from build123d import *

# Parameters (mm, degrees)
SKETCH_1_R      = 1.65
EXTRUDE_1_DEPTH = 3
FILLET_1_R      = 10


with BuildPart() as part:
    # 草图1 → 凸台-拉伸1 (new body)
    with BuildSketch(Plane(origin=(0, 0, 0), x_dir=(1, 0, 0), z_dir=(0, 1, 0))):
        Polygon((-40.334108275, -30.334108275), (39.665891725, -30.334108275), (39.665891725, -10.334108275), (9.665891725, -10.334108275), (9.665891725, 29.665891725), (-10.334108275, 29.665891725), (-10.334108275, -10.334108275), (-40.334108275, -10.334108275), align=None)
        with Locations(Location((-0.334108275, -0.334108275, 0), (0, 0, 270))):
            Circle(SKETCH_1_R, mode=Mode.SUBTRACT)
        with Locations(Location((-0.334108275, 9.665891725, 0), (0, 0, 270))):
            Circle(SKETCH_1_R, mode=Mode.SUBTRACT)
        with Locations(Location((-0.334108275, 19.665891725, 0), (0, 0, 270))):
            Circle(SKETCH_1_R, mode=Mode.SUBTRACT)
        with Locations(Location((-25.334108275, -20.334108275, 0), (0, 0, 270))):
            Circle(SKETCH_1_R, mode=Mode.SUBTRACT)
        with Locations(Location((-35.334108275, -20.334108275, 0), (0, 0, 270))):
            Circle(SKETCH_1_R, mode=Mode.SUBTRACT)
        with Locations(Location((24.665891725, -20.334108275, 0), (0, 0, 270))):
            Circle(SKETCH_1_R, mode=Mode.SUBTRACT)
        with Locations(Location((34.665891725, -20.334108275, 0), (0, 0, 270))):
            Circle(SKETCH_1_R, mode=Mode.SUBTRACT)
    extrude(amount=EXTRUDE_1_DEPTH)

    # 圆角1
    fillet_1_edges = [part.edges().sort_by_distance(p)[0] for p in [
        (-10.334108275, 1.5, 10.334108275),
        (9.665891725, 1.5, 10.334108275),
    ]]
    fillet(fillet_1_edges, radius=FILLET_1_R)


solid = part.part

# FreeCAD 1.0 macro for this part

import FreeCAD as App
import Part
import Sketcher


def edges_at(feature, points):
    """Names of the edges that pass closest to the given points."""
    edges = feature.Shape.Edges
    near = lambda p: min(range(len(edges)), key=lambda i: edges[i].distToShape(Part.Vertex(*p))[0])
    return sorted({f"Edge{near(p) + 1}" for p in points})


def add_polygon(sketch, points):
    """Adds a closed chain of lines whose ends are joined by coincident constraints."""
    first, n = sketch.GeometryCount, len(points)
    for a, b in zip(points, points[1:] + points[:1]):
        sketch.addGeometry(Part.LineSegment(App.Vector(*a, 0), App.Vector(*b, 0)), False)
    for i in range(n):
        sketch.addConstraint(Sketcher.Constraint("Coincident", first + i, 2, first + (i + 1) % n, 1))

doc = App.newDocument("Part")
body = doc.addObject("PartDesign::Body", "Body")

# Sketch on XZ plane
sketch1 = body.newObject("Sketcher::SketchObject", "Sketch")
sketch1.AttachmentSupport = (doc.getObject("XZ_Plane"), [""])
sketch1.MapMode = "FlatFace"
add_polygon(sketch1, [(-40.3, 30.3), (39.7, 30.3), (39.7, 10.3), (9.7, 10.3), (9.7, -29.7), (-10.3, -29.7), (-10.3, 10.3), (-40.3, 10.3)])  # lines 0-7
sketch1.addGeometry(Part.Circle(App.Vector(-35.3, 20.3, 0), App.Vector(0, 0, 1), 1.6), False)  # 8
sketch1.addGeometry(Part.Circle(App.Vector(-25.3, 20.3, 0), App.Vector(0, 0, 1), 1.6), False)  # 9
sketch1.addGeometry(Part.Circle(App.Vector(24.7, 20.3, 0), App.Vector(0, 0, 1), 1.6), False)  # 10
sketch1.addGeometry(Part.Circle(App.Vector(34.7, 20.3, 0), App.Vector(0, 0, 1), 1.6), False)  # 11
sketch1.addGeometry(Part.Circle(App.Vector(-0.3, 0.3, 0), App.Vector(0, 0, 1), 1.6), False)  # 12
sketch1.addGeometry(Part.Circle(App.Vector(-0.3, -9.7, 0), App.Vector(0, 0, 1), 1.6), False)  # 13
sketch1.addGeometry(Part.Circle(App.Vector(-0.3, -19.7, 0), App.Vector(0, 0, 1), 1.6), False)  # 14
sketch1.addConstraint(Sketcher.Constraint("Horizontal", 0))
sketch1.addConstraint(Sketcher.Constraint("Vertical", 1))
sketch1.addConstraint(Sketcher.Constraint("Horizontal", 2))
sketch1.addConstraint(Sketcher.Constraint("Vertical", 3))
sketch1.addConstraint(Sketcher.Constraint("Horizontal", 4))
sketch1.addConstraint(Sketcher.Constraint("Vertical", 5))
sketch1.addConstraint(Sketcher.Constraint("Horizontal", 6))
sketch1.addConstraint(Sketcher.Constraint("Vertical", 7))
sketch1.addConstraint(Sketcher.Constraint("Equal", 8, 9))
sketch1.addConstraint(Sketcher.Constraint("Equal", 9, 10))
sketch1.addConstraint(Sketcher.Constraint("Equal", 10, 11))
sketch1.addConstraint(Sketcher.Constraint("Equal", 11, 12))
sketch1.addConstraint(Sketcher.Constraint("Equal", 12, 13))
sketch1.addConstraint(Sketcher.Constraint("Equal", 13, 14))
sketch1.addConstraint(Sketcher.Constraint("Horizontal", 8, 3, 9, 3))
sketch1.addConstraint(Sketcher.Constraint("Horizontal", 9, 3, 10, 3))
sketch1.addConstraint(Sketcher.Constraint("Horizontal", 10, 3, 11, 3))
sketch1.addConstraint(Sketcher.Constraint("Horizontal", 2, 2, 5, 2))
sketch1.addConstraint(Sketcher.Constraint("Vertical", 12, 3, 13, 3))
sketch1.addConstraint(Sketcher.Constraint("Vertical", 13, 3, 14, 3))
sketch1.addConstraint(Sketcher.Constraint("Equal", 2, 6))
sketch1.addConstraint(Sketcher.Constraint("Equal", 4, 1))
sketch1.addConstraint(Sketcher.Constraint("Diameter", 8, 3.3))
sketch1.addConstraint(Sketcher.Constraint("DistanceX", 0, 1, 0, 2, 80.0))
sketch1.addConstraint(Sketcher.Constraint("DistanceX", 2, 2, 2, 1, 30.0))
sketch1.addConstraint(Sketcher.Constraint("DistanceY", 3, 2, 3, 1, 40.0))
sketch1.addConstraint(Sketcher.Constraint("DistanceX", 8, 3, 9, 3, 10.0))
sketch1.addConstraint(Sketcher.Constraint("DistanceX", 9, 3, 10, 3, 50.0))
sketch1.addConstraint(Sketcher.Constraint("DistanceX", 10, 3, 11, 3, 10.0))
sketch1.addConstraint(Sketcher.Constraint("DistanceX", 9, 3, 12, 3, 25.0))
sketch1.addConstraint(Sketcher.Constraint("DistanceY", 12, 3, 9, 3, 20.0))
sketch1.addConstraint(Sketcher.Constraint("DistanceY", 13, 3, 12, 3, 10.0))
sketch1.addConstraint(Sketcher.Constraint("DistanceY", 14, 3, 13, 3, 10.0))
sketch1.addConstraint(Sketcher.Constraint("DistanceX", 11, 3, 0, 2, 5.0))
sketch1.addConstraint(Sketcher.Constraint("DistanceY", 11, 3, 0, 2, 10.0))
sketch1.addConstraint(Sketcher.Constraint("DistanceX", 8, 3, -1, 1, 35.334108))
sketch1.addConstraint(Sketcher.Constraint("DistanceY", -1, 1, 8, 3, 20.334108))
pad1 = body.newObject("PartDesign::Pad", "Pad")
pad1.Profile = sketch1
pad1.Length = 3
pad1.Reversed = True
doc.recompute()

fillet = body.newObject("PartDesign::Fillet", "Fillet")
fillet.Base = (pad1, edges_at(pad1, [(-10.334, 1.5, 10.334), (9.666, 1.5, 10.334)]))
fillet.Radius = 10

doc.recompute()
